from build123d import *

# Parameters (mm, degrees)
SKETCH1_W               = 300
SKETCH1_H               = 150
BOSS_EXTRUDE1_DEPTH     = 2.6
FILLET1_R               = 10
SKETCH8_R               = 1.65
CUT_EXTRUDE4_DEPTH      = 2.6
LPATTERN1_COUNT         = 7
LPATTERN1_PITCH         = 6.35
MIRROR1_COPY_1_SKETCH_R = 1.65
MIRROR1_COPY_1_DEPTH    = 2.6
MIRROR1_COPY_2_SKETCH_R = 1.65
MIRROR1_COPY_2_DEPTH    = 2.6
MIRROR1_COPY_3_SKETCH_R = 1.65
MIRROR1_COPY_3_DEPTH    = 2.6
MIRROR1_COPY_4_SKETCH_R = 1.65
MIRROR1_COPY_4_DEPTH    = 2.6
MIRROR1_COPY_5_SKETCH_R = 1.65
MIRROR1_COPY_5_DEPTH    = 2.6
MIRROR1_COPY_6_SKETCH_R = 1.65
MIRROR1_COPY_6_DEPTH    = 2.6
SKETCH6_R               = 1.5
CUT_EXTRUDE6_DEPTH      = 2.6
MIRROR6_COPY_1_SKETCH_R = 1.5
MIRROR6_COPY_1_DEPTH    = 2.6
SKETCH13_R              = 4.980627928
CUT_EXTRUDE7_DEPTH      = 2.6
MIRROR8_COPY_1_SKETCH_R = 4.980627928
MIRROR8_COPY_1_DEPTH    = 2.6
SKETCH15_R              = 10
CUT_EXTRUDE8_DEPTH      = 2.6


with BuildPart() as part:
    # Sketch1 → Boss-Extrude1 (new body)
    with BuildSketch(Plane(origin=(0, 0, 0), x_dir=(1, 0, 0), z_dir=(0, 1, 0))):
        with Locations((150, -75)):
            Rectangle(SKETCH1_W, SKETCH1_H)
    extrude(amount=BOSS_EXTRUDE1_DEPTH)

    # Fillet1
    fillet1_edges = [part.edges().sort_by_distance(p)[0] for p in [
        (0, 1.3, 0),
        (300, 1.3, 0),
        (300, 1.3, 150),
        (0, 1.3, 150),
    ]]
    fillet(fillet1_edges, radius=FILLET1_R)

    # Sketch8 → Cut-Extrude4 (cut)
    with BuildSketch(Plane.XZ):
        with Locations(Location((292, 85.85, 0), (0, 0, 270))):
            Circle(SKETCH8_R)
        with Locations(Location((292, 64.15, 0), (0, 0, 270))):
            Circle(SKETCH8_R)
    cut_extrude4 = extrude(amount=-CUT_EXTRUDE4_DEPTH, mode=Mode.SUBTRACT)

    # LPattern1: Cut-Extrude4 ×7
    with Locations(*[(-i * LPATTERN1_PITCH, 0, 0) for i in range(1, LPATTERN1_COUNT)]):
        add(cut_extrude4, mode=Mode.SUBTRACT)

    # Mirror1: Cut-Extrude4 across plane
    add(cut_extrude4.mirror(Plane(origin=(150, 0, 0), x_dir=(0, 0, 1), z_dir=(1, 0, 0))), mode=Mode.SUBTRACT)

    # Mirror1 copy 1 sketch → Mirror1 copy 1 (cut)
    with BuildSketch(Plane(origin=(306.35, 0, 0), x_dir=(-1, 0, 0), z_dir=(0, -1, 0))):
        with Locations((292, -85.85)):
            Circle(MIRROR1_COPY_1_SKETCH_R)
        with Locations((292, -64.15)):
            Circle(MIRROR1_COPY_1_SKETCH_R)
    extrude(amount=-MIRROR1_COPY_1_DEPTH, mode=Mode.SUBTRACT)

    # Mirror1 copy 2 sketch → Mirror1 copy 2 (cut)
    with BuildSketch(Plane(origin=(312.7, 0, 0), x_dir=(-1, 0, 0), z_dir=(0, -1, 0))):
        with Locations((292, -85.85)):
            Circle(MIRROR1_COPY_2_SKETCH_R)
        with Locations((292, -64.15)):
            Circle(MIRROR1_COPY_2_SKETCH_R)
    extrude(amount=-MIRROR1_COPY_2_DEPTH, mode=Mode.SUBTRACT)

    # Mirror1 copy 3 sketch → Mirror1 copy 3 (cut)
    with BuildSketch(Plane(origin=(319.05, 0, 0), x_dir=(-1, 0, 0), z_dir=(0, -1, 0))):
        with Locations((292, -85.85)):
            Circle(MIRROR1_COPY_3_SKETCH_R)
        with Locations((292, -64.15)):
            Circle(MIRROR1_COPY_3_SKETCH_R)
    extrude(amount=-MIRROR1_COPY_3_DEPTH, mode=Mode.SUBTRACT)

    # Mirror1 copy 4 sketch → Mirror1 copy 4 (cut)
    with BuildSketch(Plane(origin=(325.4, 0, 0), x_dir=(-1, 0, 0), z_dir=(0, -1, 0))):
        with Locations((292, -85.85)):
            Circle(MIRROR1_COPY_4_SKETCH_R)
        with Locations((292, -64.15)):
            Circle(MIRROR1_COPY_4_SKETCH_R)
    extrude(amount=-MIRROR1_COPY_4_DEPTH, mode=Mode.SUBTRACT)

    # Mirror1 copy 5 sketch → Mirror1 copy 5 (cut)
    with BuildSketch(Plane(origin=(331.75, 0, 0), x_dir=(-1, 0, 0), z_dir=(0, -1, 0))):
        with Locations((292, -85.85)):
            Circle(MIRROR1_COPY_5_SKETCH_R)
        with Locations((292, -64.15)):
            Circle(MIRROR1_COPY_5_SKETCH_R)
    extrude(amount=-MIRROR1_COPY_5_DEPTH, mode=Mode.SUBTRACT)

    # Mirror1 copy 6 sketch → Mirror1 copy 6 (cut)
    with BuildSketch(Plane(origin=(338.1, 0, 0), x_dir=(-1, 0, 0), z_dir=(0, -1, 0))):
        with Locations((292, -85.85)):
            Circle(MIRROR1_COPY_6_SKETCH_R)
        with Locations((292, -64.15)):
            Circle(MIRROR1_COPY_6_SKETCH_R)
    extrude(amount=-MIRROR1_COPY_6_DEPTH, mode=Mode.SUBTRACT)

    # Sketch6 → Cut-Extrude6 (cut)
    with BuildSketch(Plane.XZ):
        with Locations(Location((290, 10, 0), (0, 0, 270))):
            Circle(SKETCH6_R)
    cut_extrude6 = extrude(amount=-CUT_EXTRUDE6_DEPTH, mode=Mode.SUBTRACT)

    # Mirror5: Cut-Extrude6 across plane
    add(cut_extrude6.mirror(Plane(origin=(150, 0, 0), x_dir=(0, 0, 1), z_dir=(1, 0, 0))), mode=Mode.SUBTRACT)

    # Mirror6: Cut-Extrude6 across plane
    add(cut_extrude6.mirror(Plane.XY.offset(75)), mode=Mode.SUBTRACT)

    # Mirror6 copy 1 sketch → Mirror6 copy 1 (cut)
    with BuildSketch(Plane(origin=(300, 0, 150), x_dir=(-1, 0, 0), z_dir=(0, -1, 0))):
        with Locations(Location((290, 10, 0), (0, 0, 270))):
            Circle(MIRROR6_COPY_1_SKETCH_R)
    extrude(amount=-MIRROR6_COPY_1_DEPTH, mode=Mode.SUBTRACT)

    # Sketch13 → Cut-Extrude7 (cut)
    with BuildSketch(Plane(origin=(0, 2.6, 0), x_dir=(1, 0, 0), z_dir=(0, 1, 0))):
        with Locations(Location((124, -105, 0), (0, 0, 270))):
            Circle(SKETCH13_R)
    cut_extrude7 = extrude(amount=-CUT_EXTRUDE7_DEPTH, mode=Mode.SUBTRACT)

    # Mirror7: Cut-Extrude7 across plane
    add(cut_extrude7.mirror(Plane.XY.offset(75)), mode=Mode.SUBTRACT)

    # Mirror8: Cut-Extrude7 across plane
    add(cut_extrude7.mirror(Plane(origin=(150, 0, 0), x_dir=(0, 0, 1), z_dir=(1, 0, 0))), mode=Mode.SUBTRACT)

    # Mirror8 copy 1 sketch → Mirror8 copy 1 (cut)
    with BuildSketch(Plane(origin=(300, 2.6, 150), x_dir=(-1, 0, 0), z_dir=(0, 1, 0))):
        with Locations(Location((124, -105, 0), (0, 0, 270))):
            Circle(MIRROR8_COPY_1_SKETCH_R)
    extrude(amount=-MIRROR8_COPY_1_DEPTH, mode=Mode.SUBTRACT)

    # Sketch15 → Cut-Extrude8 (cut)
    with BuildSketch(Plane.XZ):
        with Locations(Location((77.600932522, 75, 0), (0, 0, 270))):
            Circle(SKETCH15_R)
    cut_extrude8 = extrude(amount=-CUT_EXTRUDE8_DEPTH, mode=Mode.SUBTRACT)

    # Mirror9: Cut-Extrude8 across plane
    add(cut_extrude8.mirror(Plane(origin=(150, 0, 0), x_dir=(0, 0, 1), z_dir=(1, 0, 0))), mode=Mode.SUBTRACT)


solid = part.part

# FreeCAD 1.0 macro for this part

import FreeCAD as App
import Part
import Sketcher
Q = App.Units.Quantity


def edges_at(feature, points):
    """Names of the edges that pass closest to the given points."""
    edges = feature.Shape.Edges
    near = lambda p: min(range(len(edges)), key=lambda i: edges[i].distToShape(Part.Vertex(*p))[0])
    return sorted({f"Edge{near(p) + 1}" for p in points})


def add_polygon(sketch, points):
    """Adds a closed chain of lines whose ends are joined by coincident constraints."""
    first, n = sketch.GeometryCount, len(points)
    for a, b in zip(points, points[1:] + points[:1]):
        sketch.addGeometry(Part.LineSegment(App.Vector(*a, 0), App.Vector(*b, 0)), False)
    for i in range(n):
        sketch.addConstraint(Sketcher.Constraint("Coincident", first + i, 2, first + (i + 1) % n, 1))

doc = App.newDocument("Part")
params = doc.addObject("Spreadsheet::Sheet", "Params")
for row, (alias, value) in enumerate([
    ("sketch1_width", "300 mm"),
    ("sketch1_height", "150 mm"),
    ("pad1_length", "2.6 mm"),
    ("fillet_radius", "10 mm"),
    ("sketch2_diameter", "3.3 mm"),
    ("pocket1_length", "2.6 mm"),
    ("linearpattern_pitch", "6.35 mm"),
    ("sketch3_diameter", "3.3 mm"),
    ("pocket2_length", "2.6 mm"),
    ("sketch4_diameter", "3.3 mm"),
    ("pocket3_length", "2.6 mm"),
    ("sketch5_diameter", "3.3 mm"),
    ("pocket4_length", "2.6 mm"),
    ("sketch6_diameter", "3.3 mm"),
    ("pocket5_length", "2.6 mm"),
    ("sketch7_diameter", "3.3 mm"),
    ("pocket6_length", "2.6 mm"),
    ("sketch8_diameter", "3.3 mm"),
    ("pocket7_length", "2.6 mm"),
    ("sketch9_diameter", "3 mm"),
    ("pocket8_length", "2.6 mm"),
    ("sketch10_diameter", "3 mm"),
    ("pocket9_length", "2.6 mm"),
    ("pocket10_length", "2.6 mm"),
    ("pocket11_length", "2.6 mm"),
    ("sketch13_diameter", "20 mm"),
    ("pocket12_length", "2.6 mm"),
], start=1):
    params.set(f"A{row}", alias)
    params.set(f"B{row}", "=" + value)
    params.setAlias(f"B{row}", alias)

body = doc.addObject("PartDesign::Body", "Body")

# Sketch on XZ plane
sketch1 = doc.addObject("Sketcher::SketchObject", "Sketch")
body.addObject(sketch1)
sketch1.AttachmentSupport = (doc.XZ_Plane, [""])
sketch1.MapMode = "FlatFace"
add_polygon(sketch1, [(0, 0), (0, 150), (300, 150), (300, 0)])  # lines 0-3
sketch1.addConstraint([
    Sketcher.Constraint("Vertical", 0),
    Sketcher.Constraint("Horizontal", 1),
    Sketcher.Constraint("Vertical", 2),
    Sketcher.Constraint("Horizontal", 3),
    Sketcher.Constraint("Coincident", 3, 2, -1, 1),
    Sketcher.Constraint("DistanceX", 1, 1, 1, 2, Q("300 mm")),
    Sketcher.Constraint("DistanceY", 0, 1, 0, 2, Q("150 mm")),
])
sketch1.setExpression("Constraints[9]", "Params.sketch1_width")
sketch1.setExpression("Constraints[10]", "Params.sketch1_height")
pad1 = doc.addObject("PartDesign::Pad", "Pad")
body.addObject(pad1)
pad1.Profile = sketch1
pad1.setExpression("Length", "Params.pad1_length")
pad1.Reversed = True
doc.recompute()

fillet = doc.addObject("PartDesign::Fillet", "Fillet")
body.addObject(fillet)
fillet.Base = (pad1, edges_at(pad1, [
    (0, 1.3, 0),
    (300, 1.3, 0),
    (300, 1.3, 150),
    (0, 1.3, 150),
]))
fillet.setExpression("Radius", "Params.fillet_radius")

# Sketch on XZ plane
sketch2 = doc.addObject("Sketcher::SketchObject", "Sketch001")
body.addObject(sketch2)
sketch2.AttachmentSupport = (doc.XZ_Plane, [""])
sketch2.MapMode = "FlatFace"
sketch2.addGeometry([
    Part.Circle(App.Vector(292, 85.8, 0), App.Vector(0, 0, 1), 1.6),
    Part.Circle(App.Vector(292, 64.2, 0), App.Vector(0, 0, 1), 1.6),
], False)
sketch2.addConstraint([
    Sketcher.Constraint("Equal", 0, 1),
    Sketcher.Constraint("Vertical", 0, 3, 1, 3),
    Sketcher.Constraint("Diameter", 0, Q("3.3 mm")),
    Sketcher.Constraint("DistanceX", -1, 1, 0, 3, Q("292 mm")),
    Sketcher.Constraint("DistanceY", 1, 3, 0, 3, Q("21.7 mm")),
    Sketcher.Constraint("DistanceY", -1, 1, 0, 3, Q("85.85 mm")),
])
sketch2.setExpression("Constraints[2]", "Params.sketch2_diameter")
pocket1 = doc.addObject("PartDesign::Pocket", "Pocket")
body.addObject(pocket1)
pocket1.Profile = sketch2
pocket1.setExpression("Length", "Params.pocket1_length")
doc.recompute()

linearpattern = doc.addObject("PartDesign::LinearPattern", "LinearPattern")
body.addObject(linearpattern)
linearpattern.Originals = [pocket1]
linearpattern.Direction = (doc.X_Axis, [""])
linearpattern.Mode = "offset"
linearpattern.setExpression("Offset", "Params.linearpattern_pitch")
linearpattern.Occurrences = 7
linearpattern.Reversed = True
body.Tip = linearpattern
doc.recompute()

datumplane = doc.addObject("PartDesign::Plane", "DatumPlane")
body.addObject(datumplane)
datumplane.AttachmentSupport = (doc.YZ_Plane, [""])
datumplane.MapMode = "FlatFace"
datumplane.AttachmentOffset = App.Placement(App.Vector(0, 0, 150), App.Rotation())
mirrored = doc.addObject("PartDesign::Mirrored", "Mirrored")
body.addObject(mirrored)
mirrored.Originals = [pocket1]
mirrored.MirrorPlane = (datumplane, [""])
body.Tip = mirrored

# Sketch on XZ plane
sketch3 = doc.addObject("Sketcher::SketchObject", "Sketch002")
body.addObject(sketch3)
sketch3.AttachmentSupport = (doc.XZ_Plane, [""])
sketch3.MapMode = "FlatFace"
sketch3.addGeometry([
    Part.Circle(App.Vector(14.3, 85.8, 0), App.Vector(0, 0, 1), 1.6),
    Part.Circle(App.Vector(14.3, 64.2, 0), App.Vector(0, 0, 1), 1.6),
], False)
sketch3.addConstraint([
    Sketcher.Constraint("Equal", 0, 1),
    Sketcher.Constraint("Vertical", 0, 3, 1, 3),
    Sketcher.Constraint("Diameter", 0, Q("3.3 mm")),
    Sketcher.Constraint("DistanceY", 1, 3, 0, 3, Q("21.7 mm")),
    Sketcher.Constraint("DistanceX", -1, 1, 0, 3, Q("14.35 mm")),
    Sketcher.Constraint("DistanceY", -1, 1, 0, 3, Q("85.85 mm")),
])
sketch3.setExpression("Constraints[2]", "Params.sketch3_diameter")
pocket2 = doc.addObject("PartDesign::Pocket", "Pocket001")
body.addObject(pocket2)
pocket2.Profile = sketch3
pocket2.setExpression("Length", "Params.pocket2_length")

# Sketch on XZ plane
sketch4 = doc.addObject("Sketcher::SketchObject", "Sketch003")
body.addObject(sketch4)
sketch4.AttachmentSupport = (doc.XZ_Plane, [""])
sketch4.MapMode = "FlatFace"
sketch4.addGeometry([
    Part.Circle(App.Vector(20.7, 85.8, 0), App.Vector(0, 0, 1), 1.6),
    Part.Circle(App.Vector(20.7, 64.2, 0), App.Vector(0, 0, 1), 1.6),
], False)
sketch4.addConstraint([
    Sketcher.Constraint("Equal", 0, 1),
    Sketcher.Constraint("Vertical", 0, 3, 1, 3),
    Sketcher.Constraint("Diameter", 0, Q("3.3 mm")),
    Sketcher.Constraint("DistanceX", -1, 1, 0, 3, Q("20.7 mm")),
    Sketcher.Constraint("DistanceY", 1, 3, 0, 3, Q("21.7 mm")),
    Sketcher.Constraint("DistanceY", -1, 1, 0, 3, Q("85.85 mm")),
])
sketch4.setExpression("Constraints[2]", "Params.sketch4_diameter")
pocket3 = doc.addObject("PartDesign::Pocket", "Pocket002")
body.addObject(pocket3)
pocket3.Profile = sketch4
pocket3.setExpression("Length", "Params.pocket3_length")

# Sketch on XZ plane
sketch5 = doc.addObject("Sketcher::SketchObject", "Sketch004")
body.addObject(sketch5)
sketch5.AttachmentSupport = (doc.XZ_Plane, [""])
sketch5.MapMode = "FlatFace"
sketch5.addGeometry([
    Part.Circle(App.Vector(27.1, 85.8, 0), App.Vector(0, 0, 1), 1.6),
    Part.Circle(App.Vector(27.1, 64.2, 0), App.Vector(0, 0, 1), 1.6),
], False)
sketch5.addConstraint([
    Sketcher.Constraint("Equal", 0, 1),
    Sketcher.Constraint("Vertical", 0, 3, 1, 3),
    Sketcher.Constraint("Diameter", 0, Q("3.3 mm")),
    Sketcher.Constraint("DistanceY", 1, 3, 0, 3, Q("21.7 mm")),
    Sketcher.Constraint("DistanceX", -1, 1, 0, 3, Q("27.05 mm")),
    Sketcher.Constraint("DistanceY", -1, 1, 0, 3, Q("85.85 mm")),
])
sketch5.setExpression("Constraints[2]", "Params.sketch5_diameter")
pocket4 = doc.addObject("PartDesign::Pocket", "Pocket003")
body.addObject(pocket4)
pocket4.Profile = sketch5
pocket4.setExpression("Length", "Params.pocket4_length")

# Sketch on XZ plane
sketch6 = doc.addObject("Sketcher::SketchObject", "Sketch005")
body.addObject(sketch6)
sketch6.AttachmentSupport = (doc.XZ_Plane, [""])
sketch6.MapMode = "FlatFace"
sketch6.addGeometry([
    Part.Circle(App.Vector(33.4, 85.8, 0), App.Vector(0, 0, 1), 1.6),
    Part.Circle(App.Vector(33.4, 64.2, 0), App.Vector(0, 0, 1), 1.6),
], False)
sketch6.addConstraint([
    Sketcher.Constraint("Equal", 0, 1),
    Sketcher.Constraint("Vertical", 0, 3, 1, 3),
    Sketcher.Constraint("Diameter", 0, Q("3.3 mm")),
    Sketcher.Constraint("DistanceX", -1, 1, 0, 3, Q("33.4 mm")),
    Sketcher.Constraint("DistanceY", 1, 3, 0, 3, Q("21.7 mm")),
    Sketcher.Constraint("DistanceY", -1, 1, 0, 3, Q("85.85 mm")),
])
sketch6.setExpression("Constraints[2]", "Params.sketch6_diameter")
pocket5 = doc.addObject("PartDesign::Pocket", "Pocket004")
body.addObject(pocket5)
pocket5.Profile = sketch6
pocket5.setExpression("Length", "Params.pocket5_length")

# Sketch on XZ plane
sketch7 = doc.addObject("Sketcher::SketchObject", "Sketch006")
body.addObject(sketch7)
sketch7.AttachmentSupport = (doc.XZ_Plane, [""])
sketch7.MapMode = "FlatFace"
sketch7.addGeometry([
    Part.Circle(App.Vector(39.8, 85.8, 0), App.Vector(0, 0, 1), 1.6),
    Part.Circle(App.Vector(39.8, 64.2, 0), App.Vector(0, 0, 1), 1.6),
], False)
sketch7.addConstraint([
    Sketcher.Constraint("Equal", 0, 1),
    Sketcher.Constraint("Vertical", 0, 3, 1, 3),
    Sketcher.Constraint("Diameter", 0, Q("3.3 mm")),
    Sketcher.Constraint("DistanceY", 1, 3, 0, 3, Q("21.7 mm")),
    Sketcher.Constraint("DistanceX", -1, 1, 0, 3, Q("39.75 mm")),
    Sketcher.Constraint("DistanceY", -1, 1, 0, 3, Q("85.85 mm")),
])
sketch7.setExpression("Constraints[2]", "Params.sketch7_diameter")
pocket6 = doc.addObject("PartDesign::Pocket", "Pocket005")
body.addObject(pocket6)
pocket6.Profile = sketch7
pocket6.setExpression("Length", "Params.pocket6_length")

# Sketch on XZ plane
sketch8 = doc.addObject("Sketcher::SketchObject", "Sketch007")
body.addObject(sketch8)
sketch8.AttachmentSupport = (doc.XZ_Plane, [""])
sketch8.MapMode = "FlatFace"
sketch8.addGeometry([
    Part.Circle(App.Vector(46.1, 85.8, 0), App.Vector(0, 0, 1), 1.6),
    Part.Circle(App.Vector(46.1, 64.2, 0), App.Vector(0, 0, 1), 1.6),
], False)
sketch8.addConstraint([
    Sketcher.Constraint("Equal", 0, 1),
    Sketcher.Constraint("Vertical", 0, 3, 1, 3),
    Sketcher.Constraint("Diameter", 0, Q("3.3 mm")),
    Sketcher.Constraint("DistanceX", -1, 1, 0, 3, Q("46.1 mm")),
    Sketcher.Constraint("DistanceY", 1, 3, 0, 3, Q("21.7 mm")),
    Sketcher.Constraint("DistanceY", -1, 1, 0, 3, Q("85.85 mm")),
])
sketch8.setExpression("Constraints[2]", "Params.sketch8_diameter")
pocket7 = doc.addObject("PartDesign::Pocket", "Pocket006")
body.addObject(pocket7)
pocket7.Profile = sketch8
pocket7.setExpression("Length", "Params.pocket7_length")

# Sketch on XZ plane
sketch9 = doc.addObject("Sketcher::SketchObject", "Sketch008")
body.addObject(sketch9)
sketch9.AttachmentSupport = (doc.XZ_Plane, [""])
sketch9.MapMode = "FlatFace"
sketch9.addGeometry(Part.Circle(App.Vector(290, 10, 0), App.Vector(0, 0, 1), 1.5), False)
sketch9.addConstraint([
    Sketcher.Constraint("Diameter", 0, Q("3 mm")),
    Sketcher.Constraint("DistanceX", -1, 1, 0, 3, Q("290 mm")),
    Sketcher.Constraint("DistanceY", -1, 1, 0, 3, Q("10 mm")),
])
sketch9.setExpression("Constraints[0]", "Params.sketch9_diameter")
pocket8 = doc.addObject("PartDesign::Pocket", "Pocket007")
body.addObject(pocket8)
pocket8.Profile = sketch9
pocket8.setExpression("Length", "Params.pocket8_length")
doc.recompute()

datumplane2 = doc.addObject("PartDesign::Plane", "DatumPlane001")
body.addObject(datumplane2)
datumplane2.AttachmentSupport = (doc.YZ_Plane, [""])
datumplane2.MapMode = "FlatFace"
datumplane2.AttachmentOffset = App.Placement(App.Vector(0, 0, 150), App.Rotation())
mirrored2 = doc.addObject("PartDesign::Mirrored", "Mirrored001")
body.addObject(mirrored2)
mirrored2.Originals = [pocket8]
mirrored2.MirrorPlane = (datumplane2, [""])
body.Tip = mirrored2
doc.recompute()

datumplane3 = doc.addObject("PartDesign::Plane", "DatumPlane002")
body.addObject(datumplane3)
datumplane3.AttachmentSupport = (doc.XY_Plane, [""])
datumplane3.MapMode = "FlatFace"
datumplane3.AttachmentOffset = App.Placement(App.Vector(0, 0, 75), App.Rotation())
mirrored3 = doc.addObject("PartDesign::Mirrored", "Mirrored002")
body.addObject(mirrored3)
mirrored3.Originals = [pocket8]
mirrored3.MirrorPlane = (datumplane3, [""])
body.Tip = mirrored3

# Sketch on XZ plane
sketch10 = doc.addObject("Sketcher::SketchObject", "Sketch009")
body.addObject(sketch10)
sketch10.AttachmentSupport = (doc.XZ_Plane, [""])
sketch10.MapMode = "FlatFace"
sketch10.addGeometry(Part.Circle(App.Vector(10, 140, 0), App.Vector(0, 0, 1), 1.5), False)
sketch10.addConstraint([
    Sketcher.Constraint("Diameter", 0, Q("3 mm")),
    Sketcher.Constraint("DistanceX", -1, 1, 0, 3, Q("10 mm")),
    Sketcher.Constraint("DistanceY", -1, 1, 0, 3, Q("140 mm")),
])
sketch10.setExpression("Constraints[0]", "Params.sketch10_diameter")
pocket9 = doc.addObject("PartDesign::Pocket", "Pocket008")
body.addObject(pocket9)
pocket9.Profile = sketch10
pocket9.setExpression("Length", "Params.pocket9_length")

# Sketch on XZ plane
sketch11 = doc.addObject("Sketcher::SketchObject", "Sketch010")
body.addObject(sketch11)
sketch11.AttachmentSupport = (doc.XZ_Plane, [""])
sketch11.MapMode = "FlatFace"
sketch11.AttachmentOffset = App.Placement(App.Vector(0, 0, -2.6), App.Rotation())
sketch11.addGeometry(Part.Circle(App.Vector(124, 105, 0), App.Vector(0, 0, 1), 5), False)
sketch11.addConstraint([
    Sketcher.Constraint("DistanceX", -1, 1, 0, 3, Q("124 mm")),
    Sketcher.Constraint("DistanceY", -1, 1, 0, 3, Q("105 mm")),
    Sketcher.Constraint("Diameter", 0, Q("9.961256 mm")),
])
pocket10 = doc.addObject("PartDesign::Pocket", "Pocket009")
body.addObject(pocket10)
pocket10.Profile = sketch11
pocket10.setExpression("Length", "Params.pocket10_length")
pocket10.Reversed = True
doc.recompute()

datumplane4 = doc.addObject("PartDesign::Plane", "DatumPlane003")
body.addObject(datumplane4)
datumplane4.AttachmentSupport = (doc.XY_Plane, [""])
datumplane4.MapMode = "FlatFace"
datumplane4.AttachmentOffset = App.Placement(App.Vector(0, 0, 75), App.Rotation())
mirrored4 = doc.addObject("PartDesign::Mirrored", "Mirrored003")
body.addObject(mirrored4)
mirrored4.Originals = [pocket10]
mirrored4.MirrorPlane = (datumplane4, [""])
body.Tip = mirrored4
doc.recompute()

datumplane5 = doc.addObject("PartDesign::Plane", "DatumPlane004")
body.addObject(datumplane5)
datumplane5.AttachmentSupport = (doc.YZ_Plane, [""])
datumplane5.MapMode = "FlatFace"
datumplane5.AttachmentOffset = App.Placement(App.Vector(0, 0, 150), App.Rotation())
mirrored5 = doc.addObject("PartDesign::Mirrored", "Mirrored004")
body.addObject(mirrored5)
mirrored5.Originals = [pocket10]
mirrored5.MirrorPlane = (datumplane5, [""])
body.Tip = mirrored5

# Sketch on XZ plane
sketch12 = doc.addObject("Sketcher::SketchObject", "Sketch011")
body.addObject(sketch12)
sketch12.AttachmentSupport = (doc.XZ_Plane, [""])
sketch12.MapMode = "FlatFace"
sketch12.AttachmentOffset = App.Placement(App.Vector(0, 0, -2.6), App.Rotation())
sketch12.addGeometry(Part.Circle(App.Vector(176, 45, 0), App.Vector(0, 0, 1), 5), False)
sketch12.addConstraint([
    Sketcher.Constraint("DistanceX", -1, 1, 0, 3, Q("176 mm")),
    Sketcher.Constraint("DistanceY", -1, 1, 0, 3, Q("45 mm")),
    Sketcher.Constraint("Diameter", 0, Q("9.961256 mm")),
])
pocket11 = doc.addObject("PartDesign::Pocket", "Pocket010")
body.addObject(pocket11)
pocket11.Profile = sketch12
pocket11.setExpression("Length", "Params.pocket11_length")
pocket11.Reversed = True

# Sketch on XZ plane
sketch13 = doc.addObject("Sketcher::SketchObject", "Sketch012")
body.addObject(sketch13)
sketch13.AttachmentSupport = (doc.XZ_Plane, [""])
sketch13.MapMode = "FlatFace"
sketch13.addGeometry(Part.Circle(App.Vector(78, 75, 0), App.Vector(0, 0, 1), 10), False)
sketch13.addConstraint([
    Sketcher.Constraint("Diameter", 0, Q("20 mm")),
    Sketcher.Constraint("DistanceY", -1, 1, 0, 3, Q("75 mm")),
    Sketcher.Constraint("DistanceX", -1, 1, 0, 3, Q("77.600933 mm")),
])
sketch13.setExpression("Constraints[0]", "Params.sketch13_diameter")
pocket12 = doc.addObject("PartDesign::Pocket", "Pocket011")
body.addObject(pocket12)
pocket12.Profile = sketch13
pocket12.setExpression("Length", "Params.pocket12_length")
doc.recompute()

datumplane6 = doc.addObject("PartDesign::Plane", "DatumPlane005")
body.addObject(datumplane6)
datumplane6.AttachmentSupport = (doc.YZ_Plane, [""])
datumplane6.MapMode = "FlatFace"
datumplane6.AttachmentOffset = App.Placement(App.Vector(0, 0, 150), App.Rotation())
mirrored6 = doc.addObject("PartDesign::Mirrored", "Mirrored005")
body.addObject(mirrored6)
mirrored6.Originals = [pocket12]
mirrored6.MirrorPlane = (datumplane6, [""])
body.Tip = mirrored6

doc.recompute()
